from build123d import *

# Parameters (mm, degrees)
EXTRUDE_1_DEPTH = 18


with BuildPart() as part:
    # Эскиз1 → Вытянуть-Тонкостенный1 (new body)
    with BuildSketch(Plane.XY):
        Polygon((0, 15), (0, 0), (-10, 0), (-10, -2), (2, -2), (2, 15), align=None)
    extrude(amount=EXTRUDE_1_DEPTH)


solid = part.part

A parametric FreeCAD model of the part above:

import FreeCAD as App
import Part
import Sketcher


def add_polygon(sketch, points):
    """Adds a closed chain of lines whose ends are joined by coincident constraints."""
    first, n = sketch.GeometryCount, len(points)
    for a, b in zip(points, points[1:] + points[:1]):
        sketch.addGeometry(Part.LineSegment(App.Vector(*a, 0), App.Vector(*b, 0)), False)
    for i in range(n):
        sketch.addConstraint(Sketcher.Constraint("Coincident", first + i, 2, first + (i + 1) % n, 1))

doc = App.newDocument("Part")
body = doc.addObject("PartDesign::Body", "Body")

# Sketch on XY plane
sketch1 = body.newObject("Sketcher::SketchObject", "Sketch")
sketch1.AttachmentSupport = (doc.getObject("XY_Plane"), [""])
sketch1.MapMode = "FlatFace"
add_polygon(sketch1, [(0, 15), (0, 0), (-10, 0), (-10, -2), (2, -2), (2, 15)])  # lines 0-5
sketch1.addConstraint([
    Sketcher.Constraint("Vertical", 0),
    Sketcher.Constraint("Horizontal", 1),
    Sketcher.Constraint("Vertical", 2),
    Sketcher.Constraint("Horizontal", 3),
    Sketcher.Constraint("Vertical", 4),
    Sketcher.Constraint("Horizontal", 5),
    Sketcher.Constraint("Coincident", 0, 2, -1, 1),
    Sketcher.Constraint("Equal", 5, 2),
    Sketcher.Constraint("DistanceX", 1, 2, 1, 1, 10.0),
    Sketcher.Constraint("DistanceX", 3, 1, 3, 2, 12.0),
    Sketcher.Constraint("DistanceY", 0, 2, 0, 1, 15.0),
])
pad1 = body.newObject("PartDesign::Pad", "Pad")
pad1.Profile = sketch1
pad1.Length = 18

doc.recompute()
